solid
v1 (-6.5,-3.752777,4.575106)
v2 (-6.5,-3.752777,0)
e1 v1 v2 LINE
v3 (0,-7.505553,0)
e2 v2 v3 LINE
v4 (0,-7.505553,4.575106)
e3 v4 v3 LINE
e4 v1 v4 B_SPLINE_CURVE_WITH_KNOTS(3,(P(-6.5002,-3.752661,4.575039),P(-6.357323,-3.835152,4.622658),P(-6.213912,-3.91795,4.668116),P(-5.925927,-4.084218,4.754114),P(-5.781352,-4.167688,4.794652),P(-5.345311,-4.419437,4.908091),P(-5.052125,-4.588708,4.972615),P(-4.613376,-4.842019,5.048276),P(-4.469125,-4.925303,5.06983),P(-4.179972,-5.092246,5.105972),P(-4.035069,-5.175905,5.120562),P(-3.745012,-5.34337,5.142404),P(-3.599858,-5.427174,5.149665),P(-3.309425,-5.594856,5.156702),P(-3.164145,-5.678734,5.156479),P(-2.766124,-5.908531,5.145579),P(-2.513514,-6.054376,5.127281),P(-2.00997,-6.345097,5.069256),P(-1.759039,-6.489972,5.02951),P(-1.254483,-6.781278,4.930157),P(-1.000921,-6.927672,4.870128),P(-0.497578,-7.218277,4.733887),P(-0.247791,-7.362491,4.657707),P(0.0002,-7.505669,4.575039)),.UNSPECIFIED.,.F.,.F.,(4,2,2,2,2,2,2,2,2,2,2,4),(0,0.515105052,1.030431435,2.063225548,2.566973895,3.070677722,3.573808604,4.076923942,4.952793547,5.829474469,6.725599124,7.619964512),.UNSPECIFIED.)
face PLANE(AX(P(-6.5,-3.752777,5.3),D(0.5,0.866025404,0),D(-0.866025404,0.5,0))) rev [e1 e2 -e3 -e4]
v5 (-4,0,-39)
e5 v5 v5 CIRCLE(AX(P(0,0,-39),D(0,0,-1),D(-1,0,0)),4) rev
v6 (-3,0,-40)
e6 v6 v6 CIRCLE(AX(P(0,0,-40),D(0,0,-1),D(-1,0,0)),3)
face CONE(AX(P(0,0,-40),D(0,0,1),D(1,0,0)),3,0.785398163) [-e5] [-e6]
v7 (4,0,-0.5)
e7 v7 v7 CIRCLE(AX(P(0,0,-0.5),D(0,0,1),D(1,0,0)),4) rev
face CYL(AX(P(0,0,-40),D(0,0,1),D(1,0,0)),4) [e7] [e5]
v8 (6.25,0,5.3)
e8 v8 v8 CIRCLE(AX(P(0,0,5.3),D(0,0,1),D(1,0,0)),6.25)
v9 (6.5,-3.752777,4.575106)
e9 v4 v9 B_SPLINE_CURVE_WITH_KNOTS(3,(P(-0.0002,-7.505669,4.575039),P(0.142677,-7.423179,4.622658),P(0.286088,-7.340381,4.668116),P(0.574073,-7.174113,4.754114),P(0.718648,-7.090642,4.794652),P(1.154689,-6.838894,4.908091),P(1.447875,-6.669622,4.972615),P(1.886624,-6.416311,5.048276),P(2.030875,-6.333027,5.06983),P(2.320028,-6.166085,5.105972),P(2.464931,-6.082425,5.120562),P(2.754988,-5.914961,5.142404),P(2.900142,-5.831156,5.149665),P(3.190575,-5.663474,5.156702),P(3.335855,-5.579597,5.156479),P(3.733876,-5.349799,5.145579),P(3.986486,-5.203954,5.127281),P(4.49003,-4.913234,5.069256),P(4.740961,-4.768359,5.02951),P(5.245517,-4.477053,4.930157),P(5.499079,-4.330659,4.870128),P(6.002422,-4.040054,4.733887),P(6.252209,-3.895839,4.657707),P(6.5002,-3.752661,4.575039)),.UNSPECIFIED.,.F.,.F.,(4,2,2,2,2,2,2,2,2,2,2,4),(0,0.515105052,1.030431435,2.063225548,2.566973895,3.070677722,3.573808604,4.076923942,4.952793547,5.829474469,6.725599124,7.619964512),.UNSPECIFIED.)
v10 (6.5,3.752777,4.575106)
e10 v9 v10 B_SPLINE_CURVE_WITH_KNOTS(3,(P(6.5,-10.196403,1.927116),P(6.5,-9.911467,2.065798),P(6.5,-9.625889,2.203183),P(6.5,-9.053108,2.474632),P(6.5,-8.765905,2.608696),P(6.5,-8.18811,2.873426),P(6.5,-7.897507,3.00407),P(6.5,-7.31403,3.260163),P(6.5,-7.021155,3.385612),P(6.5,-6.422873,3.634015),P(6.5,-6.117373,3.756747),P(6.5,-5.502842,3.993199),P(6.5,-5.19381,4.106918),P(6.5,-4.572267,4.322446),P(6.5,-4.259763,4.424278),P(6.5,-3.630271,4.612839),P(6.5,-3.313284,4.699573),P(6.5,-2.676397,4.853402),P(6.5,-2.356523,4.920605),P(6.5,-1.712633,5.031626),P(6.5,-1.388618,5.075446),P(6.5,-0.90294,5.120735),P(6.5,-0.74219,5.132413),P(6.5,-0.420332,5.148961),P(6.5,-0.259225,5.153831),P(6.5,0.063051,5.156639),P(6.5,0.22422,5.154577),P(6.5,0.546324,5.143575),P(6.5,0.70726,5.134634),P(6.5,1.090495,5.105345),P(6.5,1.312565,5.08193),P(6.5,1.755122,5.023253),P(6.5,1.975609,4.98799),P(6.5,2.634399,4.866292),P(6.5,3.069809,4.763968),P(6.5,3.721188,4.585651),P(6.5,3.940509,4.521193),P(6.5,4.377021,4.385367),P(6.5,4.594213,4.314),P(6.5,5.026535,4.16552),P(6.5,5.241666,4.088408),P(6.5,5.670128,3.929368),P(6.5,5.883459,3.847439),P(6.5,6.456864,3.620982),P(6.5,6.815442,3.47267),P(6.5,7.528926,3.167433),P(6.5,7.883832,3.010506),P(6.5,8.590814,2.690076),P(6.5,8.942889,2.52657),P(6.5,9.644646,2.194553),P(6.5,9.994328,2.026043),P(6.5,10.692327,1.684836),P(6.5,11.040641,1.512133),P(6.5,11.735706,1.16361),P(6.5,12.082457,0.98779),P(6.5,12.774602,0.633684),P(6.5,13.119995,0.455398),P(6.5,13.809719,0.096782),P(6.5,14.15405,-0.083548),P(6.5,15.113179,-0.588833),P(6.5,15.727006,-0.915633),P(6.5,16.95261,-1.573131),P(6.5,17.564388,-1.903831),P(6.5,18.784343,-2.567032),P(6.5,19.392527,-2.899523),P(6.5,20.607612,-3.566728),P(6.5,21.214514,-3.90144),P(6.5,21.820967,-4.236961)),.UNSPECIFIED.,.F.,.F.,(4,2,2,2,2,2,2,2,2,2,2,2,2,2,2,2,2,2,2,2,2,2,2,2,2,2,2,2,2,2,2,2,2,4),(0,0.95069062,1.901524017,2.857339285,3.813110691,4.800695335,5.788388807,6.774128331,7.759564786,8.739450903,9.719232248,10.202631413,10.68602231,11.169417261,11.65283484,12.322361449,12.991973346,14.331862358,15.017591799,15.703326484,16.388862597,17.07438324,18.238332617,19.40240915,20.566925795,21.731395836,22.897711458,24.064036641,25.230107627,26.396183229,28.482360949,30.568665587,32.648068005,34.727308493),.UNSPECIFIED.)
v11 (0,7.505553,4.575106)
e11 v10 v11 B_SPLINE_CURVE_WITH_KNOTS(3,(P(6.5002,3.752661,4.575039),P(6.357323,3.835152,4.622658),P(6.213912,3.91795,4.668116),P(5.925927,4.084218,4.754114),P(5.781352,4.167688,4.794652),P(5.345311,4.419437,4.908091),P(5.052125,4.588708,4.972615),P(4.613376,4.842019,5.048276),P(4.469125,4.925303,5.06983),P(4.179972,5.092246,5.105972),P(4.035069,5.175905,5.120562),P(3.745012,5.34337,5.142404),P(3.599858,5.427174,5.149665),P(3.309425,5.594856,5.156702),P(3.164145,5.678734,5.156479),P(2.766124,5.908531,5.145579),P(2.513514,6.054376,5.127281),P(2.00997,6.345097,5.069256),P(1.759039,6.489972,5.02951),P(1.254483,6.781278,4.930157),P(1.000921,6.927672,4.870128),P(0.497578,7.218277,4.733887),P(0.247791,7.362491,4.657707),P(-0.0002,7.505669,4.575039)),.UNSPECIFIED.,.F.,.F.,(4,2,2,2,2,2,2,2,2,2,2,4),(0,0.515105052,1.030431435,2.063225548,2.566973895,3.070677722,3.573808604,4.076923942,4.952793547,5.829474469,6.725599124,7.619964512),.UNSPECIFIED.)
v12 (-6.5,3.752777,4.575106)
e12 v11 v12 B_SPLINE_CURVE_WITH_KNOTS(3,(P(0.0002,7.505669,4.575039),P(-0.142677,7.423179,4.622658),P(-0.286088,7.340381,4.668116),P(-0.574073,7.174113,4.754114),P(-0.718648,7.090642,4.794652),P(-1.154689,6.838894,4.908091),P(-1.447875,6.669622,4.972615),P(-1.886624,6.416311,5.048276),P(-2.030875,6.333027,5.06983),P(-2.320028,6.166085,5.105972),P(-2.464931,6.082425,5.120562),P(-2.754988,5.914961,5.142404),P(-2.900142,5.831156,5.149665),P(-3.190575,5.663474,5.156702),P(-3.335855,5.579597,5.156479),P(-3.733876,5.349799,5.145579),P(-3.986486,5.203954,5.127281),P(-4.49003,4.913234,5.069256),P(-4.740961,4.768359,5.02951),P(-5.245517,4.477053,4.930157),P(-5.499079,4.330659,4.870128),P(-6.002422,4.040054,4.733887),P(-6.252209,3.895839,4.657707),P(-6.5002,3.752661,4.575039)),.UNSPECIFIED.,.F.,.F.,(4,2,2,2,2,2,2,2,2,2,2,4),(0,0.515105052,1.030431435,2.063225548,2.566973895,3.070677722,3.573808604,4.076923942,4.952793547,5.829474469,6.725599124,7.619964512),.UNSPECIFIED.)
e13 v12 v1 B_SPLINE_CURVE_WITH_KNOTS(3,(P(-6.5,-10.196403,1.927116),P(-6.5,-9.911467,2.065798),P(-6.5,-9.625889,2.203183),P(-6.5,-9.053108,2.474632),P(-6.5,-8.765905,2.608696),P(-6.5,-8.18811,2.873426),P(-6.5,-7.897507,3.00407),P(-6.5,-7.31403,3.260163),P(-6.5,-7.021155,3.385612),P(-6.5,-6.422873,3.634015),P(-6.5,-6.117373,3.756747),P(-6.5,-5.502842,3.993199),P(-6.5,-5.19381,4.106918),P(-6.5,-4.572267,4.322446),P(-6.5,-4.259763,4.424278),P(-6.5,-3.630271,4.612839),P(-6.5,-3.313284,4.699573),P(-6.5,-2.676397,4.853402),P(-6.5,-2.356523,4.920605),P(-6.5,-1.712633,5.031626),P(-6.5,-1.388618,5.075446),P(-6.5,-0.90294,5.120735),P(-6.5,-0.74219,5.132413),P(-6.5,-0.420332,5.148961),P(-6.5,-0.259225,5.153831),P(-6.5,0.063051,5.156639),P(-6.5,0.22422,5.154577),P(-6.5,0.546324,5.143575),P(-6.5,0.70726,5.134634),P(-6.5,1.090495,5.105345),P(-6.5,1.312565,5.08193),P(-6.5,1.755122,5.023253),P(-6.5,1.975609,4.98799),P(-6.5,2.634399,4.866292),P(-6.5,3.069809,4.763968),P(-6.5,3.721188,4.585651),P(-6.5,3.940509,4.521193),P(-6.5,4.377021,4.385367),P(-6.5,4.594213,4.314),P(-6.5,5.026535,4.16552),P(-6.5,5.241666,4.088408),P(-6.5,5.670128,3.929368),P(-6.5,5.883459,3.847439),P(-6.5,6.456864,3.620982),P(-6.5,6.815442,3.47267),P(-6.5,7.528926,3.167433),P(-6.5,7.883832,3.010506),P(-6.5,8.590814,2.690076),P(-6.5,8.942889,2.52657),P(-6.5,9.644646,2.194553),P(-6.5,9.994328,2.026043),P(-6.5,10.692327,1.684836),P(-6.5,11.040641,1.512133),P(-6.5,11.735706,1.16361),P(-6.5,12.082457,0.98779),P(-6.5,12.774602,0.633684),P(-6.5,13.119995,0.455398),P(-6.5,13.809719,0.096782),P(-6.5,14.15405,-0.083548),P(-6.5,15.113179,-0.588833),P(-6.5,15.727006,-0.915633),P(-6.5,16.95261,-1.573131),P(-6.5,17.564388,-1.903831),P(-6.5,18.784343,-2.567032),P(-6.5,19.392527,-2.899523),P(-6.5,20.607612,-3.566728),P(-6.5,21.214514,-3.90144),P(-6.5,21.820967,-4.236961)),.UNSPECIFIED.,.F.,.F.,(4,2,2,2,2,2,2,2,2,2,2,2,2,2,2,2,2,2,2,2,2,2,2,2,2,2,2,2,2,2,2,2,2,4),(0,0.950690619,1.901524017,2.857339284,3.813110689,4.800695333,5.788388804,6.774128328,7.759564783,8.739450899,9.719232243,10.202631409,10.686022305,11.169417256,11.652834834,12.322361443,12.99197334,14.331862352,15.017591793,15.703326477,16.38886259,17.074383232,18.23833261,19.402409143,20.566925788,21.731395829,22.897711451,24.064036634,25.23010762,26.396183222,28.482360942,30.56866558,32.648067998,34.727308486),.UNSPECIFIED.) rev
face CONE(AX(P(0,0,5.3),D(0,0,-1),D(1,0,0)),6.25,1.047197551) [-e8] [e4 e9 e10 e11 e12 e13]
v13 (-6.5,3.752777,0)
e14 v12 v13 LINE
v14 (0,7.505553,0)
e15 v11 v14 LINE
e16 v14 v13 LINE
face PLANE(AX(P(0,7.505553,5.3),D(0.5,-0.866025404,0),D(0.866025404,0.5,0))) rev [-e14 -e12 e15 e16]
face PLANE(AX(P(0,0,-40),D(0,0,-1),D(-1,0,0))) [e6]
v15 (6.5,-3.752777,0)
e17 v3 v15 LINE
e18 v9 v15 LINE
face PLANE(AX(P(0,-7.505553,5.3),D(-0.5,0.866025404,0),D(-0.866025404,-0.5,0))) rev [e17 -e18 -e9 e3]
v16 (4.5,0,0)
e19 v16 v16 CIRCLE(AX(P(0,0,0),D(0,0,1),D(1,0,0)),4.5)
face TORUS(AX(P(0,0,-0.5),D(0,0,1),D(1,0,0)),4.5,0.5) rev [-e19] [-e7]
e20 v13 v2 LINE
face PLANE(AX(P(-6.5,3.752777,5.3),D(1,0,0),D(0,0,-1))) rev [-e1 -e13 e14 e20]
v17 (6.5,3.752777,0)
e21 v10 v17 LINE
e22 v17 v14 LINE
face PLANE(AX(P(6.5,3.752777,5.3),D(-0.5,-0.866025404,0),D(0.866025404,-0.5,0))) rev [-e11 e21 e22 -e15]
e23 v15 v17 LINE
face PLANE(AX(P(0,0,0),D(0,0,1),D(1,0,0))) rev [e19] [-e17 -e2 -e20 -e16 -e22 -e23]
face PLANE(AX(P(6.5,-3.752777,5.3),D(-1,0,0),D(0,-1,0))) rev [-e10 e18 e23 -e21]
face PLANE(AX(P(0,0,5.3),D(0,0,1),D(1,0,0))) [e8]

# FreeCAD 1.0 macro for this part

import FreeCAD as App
import Part
import Sketcher
from FreeCAD import Vector
Q = App.Units.Quantity


def edges_at(feature, points):
    """Names of the edges that pass closest to the given points."""
    edges = feature.Shape.Edges
    near = lambda p: min(range(len(edges)), key=lambda i: edges[i].distToShape(Part.Vertex(*p))[0])
    return sorted({f"Edge{near(p) + 1}" for p in points})


def faces_at(feature, points):
    """Names of the faces that lie closest to the given points."""
    faces = feature.Shape.Faces
    near = lambda p: min(range(len(faces)), key=lambda i: faces[i].distToShape(Part.Vertex(*p))[0])
    return sorted({f"Face{near(p) + 1}" for p in points})


def add_polygon(sketch, points):
    """Adds a closed chain of lines whose ends are joined by coincident constraints."""
    first, n = sketch.GeometryCount, len(points)
    for a, b in zip(points, points[1:] + points[:1]):
        sketch.addGeometry(Part.LineSegment(App.Vector(*a, 0), App.Vector(*b, 0)), False)
    for i in range(n):
        sketch.addConstraint(Sketcher.Constraint("Coincident", first + i, 2, first + (i + 1) % n, 1))

doc = App.newDocument("Part")
params = doc.addObject("Spreadsheet::Sheet", "Params")
for row, (alias, value) in enumerate([
    ("pad1_length", "5.3 mm"),
    ("sketch2_diameter", "12.5 mm"),
    ("pad2_length", "12.254925 mm"),
    ("draft_angle", "60 deg"),
    ("sketch3_diameter", "8 mm"),
    ("pad3_length", "40 mm"),
    ("chamfer_size", "1 mm"),
    ("fillet_radius", "0.5 mm"),
], start=1):
    params.set(f"A{row}", alias)
    params.set(f"B{row}", "=" + value)
    params.setAlias(f"B{row}", alias)

body = doc.addObject("PartDesign::Body", "Body")

# Sketch on XY plane
sketch1 = body.newObject("Sketcher::SketchObject", "Sketch")
sketch1.AttachmentSupport = (doc.getObject("XY_Plane"), [""])
sketch1.MapMode = "FlatFace"
add_polygon(sketch1, [(0, 8), (-6, 4), (-6, -4), (0, -8), (6, -4), (6, 4)])  # lines 0-5
sketch1.addConstraint([
    Sketcher.Constraint("Vertical", 1),
    Sketcher.Constraint("Vertical", 4),
    Sketcher.Constraint("Symmetric", 0, 2, 3, 2, -1, 1),
    Sketcher.Constraint("Symmetric", 2, 2, 5, 2, -1, 1),
    Sketcher.Constraint("PointOnObject", 2, 2, -2),
    Sketcher.Constraint("Parallel", 2, 5),
    Sketcher.Constraint("Horizontal", 1, 2, 3, 2),
    Sketcher.Constraint("Angle", 0, Q("-150 deg")),
    Sketcher.Constraint("DistanceX", 1, 2, 3, 2, 13.0),
    Sketcher.Constraint("DistanceY", 1, 2, 1, 1, 7.505554),
])
pad1 = body.newObject("PartDesign::Pad", "Pad")
pad1.Profile = sketch1
pad1.setExpression("Length", "Params.pad1_length")
body2 = doc.addObject("PartDesign::Body", "Body001")

# Sketch on XY plane
sketch2 = body2.newObject("Sketcher::SketchObject", "Sketch001")
sketch2.AttachmentSupport = (doc.getObject("XY_Plane001"), [""])
sketch2.MapMode = "FlatFace"
sketch2.AttachmentOffset = App.Placement(Vector(0, 0, 5.3), App.Rotation())
add_polygon(sketch2, [(-31, 32), (-31, -32), (31, -32), (31, 32)])  # lines 0-3
sketch2.addGeometry(Part.Circle(Vector(0, 0, 0), Vector(0, 0, 1), 6), False)  # 4
sketch2.addConstraint([
    Sketcher.Constraint("Vertical", 0),
    Sketcher.Constraint("Horizontal", 1),
    Sketcher.Constraint("Vertical", 2),
    Sketcher.Constraint("Horizontal", 3),
    Sketcher.Constraint("Coincident", 4, 3, -1, 1),
    Sketcher.Constraint("Symmetric", 0, 2, 2, 2, -1, 1),
    Sketcher.Constraint("Diameter", 4, 12.5),
    Sketcher.Constraint("DistanceX", 1, 1, 1, 2, 61.562),
    Sketcher.Constraint("DistanceY", 0, 2, 0, 1, 63.574),
])
sketch2.setExpression("Constraints[10]", "Params.sketch2_diameter")
pad2 = body2.newObject("PartDesign::Pad", "Pad001")
pad2.Profile = sketch2
pad2.setExpression("Length", "Params.pad2_length")
pad2.Reversed = True
doc.recompute()

datumplane = body2.newObject("PartDesign::Plane", "DatumPlane")
datumplane.AttachmentSupport = (doc.getObject("XY_Plane001"), [""])
datumplane.MapMode = "FlatFace"
datumplane.AttachmentOffset = App.Placement(Vector(0, 0, 5.3), App.Rotation())
draft = body2.newObject("PartDesign::Draft", "Draft")
draft.Base = (pad2, faces_at(pad2, [
    (0, -31.787, -0.827),
    (30.781, 0, -0.827),
    (0, 31.787, -0.827),
    (-30.781, 0, -0.827),
    (-6.25, 0, -0.827),
]))
draft.NeutralPlane = (datumplane, [""])
draft.setExpression("Angle", "Params.draft_angle")
draft.Reversed = True
doc.recompute()

boolean = body.newObject("PartDesign::Boolean", "Boolean")
boolean.Type = "Cut"
boolean.addObjects([body2])

# Sketch on XY plane
sketch3 = body.newObject("Sketcher::SketchObject", "Sketch002")
sketch3.AttachmentSupport = (doc.getObject("XY_Plane"), [""])
sketch3.MapMode = "FlatFace"
sketch3.addGeometry(Part.Circle(Vector(0, 0, 0), Vector(0, 0, 1), 4), False)
sketch3.addConstraint([
    Sketcher.Constraint("Coincident", 0, 3, -1, 1),
    Sketcher.Constraint("Diameter", 0, 8.0),
])
sketch3.setExpression("Constraints[1]", "Params.sketch3_diameter")
pad3 = body.newObject("PartDesign::Pad", "Pad002")
pad3.Profile = sketch3
pad3.setExpression("Length", "Params.pad3_length")
pad3.Reversed = True
doc.recompute()

chamfer = body.newObject("PartDesign::Chamfer", "Chamfer")
chamfer.Base = (pad3, edges_at(pad3, [(-4, 0, -40)]))
chamfer.setExpression("Size", "Params.chamfer_size")
doc.recompute()

fillet = body.newObject("PartDesign::Fillet", "Fillet")
fillet.Base = (chamfer, edges_at(chamfer, [(-4, 0, 0)]))
fillet.setExpression("Radius", "Params.fillet_radius")

doc.recompute()
